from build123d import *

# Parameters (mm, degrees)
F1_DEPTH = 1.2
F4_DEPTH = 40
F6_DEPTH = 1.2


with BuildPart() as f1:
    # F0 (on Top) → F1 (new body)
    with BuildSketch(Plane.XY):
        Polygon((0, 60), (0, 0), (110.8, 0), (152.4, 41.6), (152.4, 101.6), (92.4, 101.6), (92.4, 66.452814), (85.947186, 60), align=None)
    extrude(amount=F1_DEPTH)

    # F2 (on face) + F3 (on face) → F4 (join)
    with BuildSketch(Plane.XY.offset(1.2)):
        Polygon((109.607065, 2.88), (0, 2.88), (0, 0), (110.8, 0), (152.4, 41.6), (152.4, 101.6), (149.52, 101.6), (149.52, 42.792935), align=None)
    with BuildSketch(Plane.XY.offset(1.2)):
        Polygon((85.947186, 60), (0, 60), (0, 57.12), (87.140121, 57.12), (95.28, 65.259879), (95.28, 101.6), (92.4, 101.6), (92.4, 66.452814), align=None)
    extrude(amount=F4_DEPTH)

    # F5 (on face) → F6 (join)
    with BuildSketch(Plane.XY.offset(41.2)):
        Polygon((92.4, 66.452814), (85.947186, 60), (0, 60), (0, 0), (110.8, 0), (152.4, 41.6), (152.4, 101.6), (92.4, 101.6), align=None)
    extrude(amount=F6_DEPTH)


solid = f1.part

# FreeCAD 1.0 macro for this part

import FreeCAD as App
import Part
import Sketcher
Q = App.Units.Quantity


def add_polygon(sketch, points):
    """Adds a closed chain of lines whose ends are joined by coincident constraints."""
    first, n = sketch.GeometryCount, len(points)
    for a, b in zip(points, points[1:] + points[:1]):
        sketch.addGeometry(Part.LineSegment(App.Vector(*a, 0), App.Vector(*b, 0)), False)
    for i in range(n):
        sketch.addConstraint(Sketcher.Constraint("Coincident", first + i, 2, first + (i + 1) % n, 1))

doc = App.newDocument("Part")
params = doc.addObject("Spreadsheet::Sheet", "Params")
for row, (alias, value) in enumerate([
    ("sketch1_width", "60 mm"),
    ("sketch1_width2", "110.8 mm"),
    ("pad1_length", "1.2 mm"),
    ("sketch2_height", "60 mm"),
    ("sketch2_width", "110.8 mm"),
    ("sketch2_width2", "2.88 mm"),
    ("pad2_length", "40 mm"),
    ("sketch3_width", "60 mm"),
    ("sketch3_width2", "110.8 mm"),
    ("pad3_length", "1.2 mm"),
], start=1):
    params.set(f"A{row}", alias)
    params.set(f"B{row}", "=" + value)
    params.setAlias(f"B{row}", alias)

body = doc.addObject("PartDesign::Body", "Body")

# Sketch on XY plane
sketch1 = body.newObject("Sketcher::SketchObject", "Sketch")
sketch1.AttachmentSupport = (doc.getObject("XY_Plane"), [""])
sketch1.MapMode = "FlatFace"
add_polygon(sketch1, [(0, 60), (0, 0), (110.8, 0), (152.4, 41.6), (152.4, 101.6), (92.4, 101.6), (92.4, 66.452814), (85.947186, 60)])  # lines 0-7
sketch1.addConstraint(Sketcher.Constraint("Vertical", 0))
sketch1.addConstraint(Sketcher.Constraint("Horizontal", 1))
sketch1.addConstraint(Sketcher.Constraint("Vertical", 3))
sketch1.addConstraint(Sketcher.Constraint("Horizontal", 4))
sketch1.addConstraint(Sketcher.Constraint("Vertical", 5))
sketch1.addConstraint(Sketcher.Constraint("Horizontal", 7))
sketch1.addConstraint(Sketcher.Constraint("Coincident", 0, 2, -1, 1))
sketch1.addConstraint(Sketcher.Constraint("Parallel", 2, 6))
sketch1.addConstraint(Sketcher.Constraint("Equal", 4, 0))
sketch1.addConstraint(Sketcher.Constraint("Equal", 0, 3))
sketch1.addConstraint(Sketcher.Constraint("DistanceX", 4, 2, 4, 1, 60.0))
sketch1.addConstraint(Sketcher.Constraint("Angle", 2, Q("45 deg")))
sketch1.addConstraint(Sketcher.Constraint("DistanceX", 1, 1, 1, 2, 110.8))
sketch1.addConstraint(Sketcher.Constraint("DistanceX", -1, 1, 2, 2, 152.4))
sketch1.addConstraint(Sketcher.Constraint("DistanceX", 7, 2, 7, 1, 85.947186))
sketch1.setExpression("Constraints[18]", "Params.sketch1_width")
sketch1.setExpression("Constraints[20]", "Params.sketch1_width2")
pad1 = body.newObject("PartDesign::Pad", "Pad")
pad1.Profile = sketch1
pad1.setExpression("Length", "Params.pad1_length")

# Sketch on XY plane
sketch2 = body.newObject("Sketcher::SketchObject", "Sketch001")
sketch2.AttachmentSupport = (doc.getObject("XY_Plane"), [""])
sketch2.MapMode = "FlatFace"
sketch2.AttachmentOffset = App.Placement(App.Vector(0, 0, 1.2), App.Rotation())
add_polygon(sketch2, [(109.607065, 2.88), (0, 2.88), (0, 0), (110.8, 0), (152.4, 41.6), (152.4, 101.6), (149.52, 101.6), (149.52, 42.792935)])  # lines 0-7
add_polygon(sketch2, [(85.947186, 60), (0, 60), (0, 57.12), (87.140121, 57.12), (95.28, 65.259879), (95.28, 101.6), (92.4, 101.6), (92.4, 66.452814)])  # lines 8-15
sketch2.addConstraint(Sketcher.Constraint("Horizontal", 0))
sketch2.addConstraint(Sketcher.Constraint("Vertical", 1))
sketch2.addConstraint(Sketcher.Constraint("Horizontal", 2))
sketch2.addConstraint(Sketcher.Constraint("Vertical", 4))
sketch2.addConstraint(Sketcher.Constraint("Horizontal", 5))
sketch2.addConstraint(Sketcher.Constraint("Vertical", 6))
sketch2.addConstraint(Sketcher.Constraint("Horizontal", 8))
sketch2.addConstraint(Sketcher.Constraint("Vertical", 9))
sketch2.addConstraint(Sketcher.Constraint("Horizontal", 10))
sketch2.addConstraint(Sketcher.Constraint("Vertical", 12))
sketch2.addConstraint(Sketcher.Constraint("Horizontal", 13))
sketch2.addConstraint(Sketcher.Constraint("Vertical", 14))
sketch2.addConstraint(Sketcher.Constraint("Coincident", 1, 2, -1, 1))
sketch2.addConstraint(Sketcher.Constraint("PointOnObject", 8, 2, -2))
sketch2.addConstraint(Sketcher.Constraint("Parallel", 3, 7))
sketch2.addConstraint(Sketcher.Constraint("Parallel", 7, 11))
sketch2.addConstraint(Sketcher.Constraint("Parallel", 11, 15))
sketch2.addConstraint(Sketcher.Constraint("Horizontal", 5, 2, 12, 2))
sketch2.addConstraint(Sketcher.Constraint("Equal", 5, 13))
sketch2.addConstraint(Sketcher.Constraint("Equal", 13, 1))
sketch2.addConstraint(Sketcher.Constraint("Equal", 1, 9))
sketch2.addConstraint(Sketcher.Constraint("DistanceY", 4, 1, 4, 2, 60.0))
sketch2.addConstraint(Sketcher.Constraint("Angle", 3, Q("45 deg")))
sketch2.addConstraint(Sketcher.Constraint("DistanceX", 2, 1, 2, 2, 110.8))
sketch2.addConstraint(Sketcher.Constraint("DistanceY", -1, 1, 8, 2, 60.0))
sketch2.addConstraint(Sketcher.Constraint("DistanceX", 13, 2, 4, 2, 60.0))
sketch2.addConstraint(Sketcher.Constraint("DistanceX", 5, 2, 5, 1, 2.88))
sketch2.addConstraint(Sketcher.Constraint("DistanceX", -1, 1, 3, 2, 152.4))
sketch2.addConstraint(Sketcher.Constraint("DistanceX", 10, 1, 10, 2, 87.140121))
sketch2.addConstraint(Sketcher.Constraint("DistanceX", 0, 2, 0, 1, 109.607065))
sketch2.addConstraint(Sketcher.Constraint("DistanceX", 8, 2, 8, 1, 85.947186))
sketch2.setExpression("Constraints[37]", "Params.sketch2_height")
sketch2.setExpression("Constraints[39]", "Params.sketch2_width")
sketch2.setExpression("Constraints[42]", "Params.sketch2_width2")
pad2 = body.newObject("PartDesign::Pad", "Pad001")
pad2.Profile = sketch2
pad2.setExpression("Length", "Params.pad2_length")

# Sketch on XY plane
sketch3 = body.newObject("Sketcher::SketchObject", "Sketch002")
sketch3.AttachmentSupport = (doc.getObject("XY_Plane"), [""])
sketch3.MapMode = "FlatFace"
sketch3.AttachmentOffset = App.Placement(App.Vector(0, 0, 41.2), App.Rotation())
add_polygon(sketch3, [(92.4, 66.452814), (85.947186, 60), (0, 60), (0, 0), (110.8, 0), (152.4, 41.6), (152.4, 101.6), (92.4, 101.6)])  # lines 0-7
sketch3.addConstraint(Sketcher.Constraint("Horizontal", 1))
sketch3.addConstraint(Sketcher.Constraint("Vertical", 2))
sketch3.addConstraint(Sketcher.Constraint("Horizontal", 3))
sketch3.addConstraint(Sketcher.Constraint("Vertical", 5))
sketch3.addConstraint(Sketcher.Constraint("Horizontal", 6))
sketch3.addConstraint(Sketcher.Constraint("Vertical", 7))
sketch3.addConstraint(Sketcher.Constraint("Coincident", 2, 2, -1, 1))
sketch3.addConstraint(Sketcher.Constraint("Parallel", 0, 4))
sketch3.addConstraint(Sketcher.Constraint("Equal", 6, 2))
sketch3.addConstraint(Sketcher.Constraint("Equal", 2, 5))
sketch3.addConstraint(Sketcher.Constraint("DistanceX", 6, 2, 6, 1, 60.0))
sketch3.addConstraint(Sketcher.Constraint("Angle", 0, Q("-135 deg")))
sketch3.addConstraint(Sketcher.Constraint("DistanceX", 3, 1, 3, 2, 110.8))
sketch3.addConstraint(Sketcher.Constraint("DistanceX", -1, 1, 4, 2, 152.4))
sketch3.addConstraint(Sketcher.Constraint("DistanceX", 1, 2, 1, 1, 85.947186))
sketch3.setExpression("Constraints[18]", "Params.sketch3_width")
sketch3.setExpression("Constraints[20]", "Params.sketch3_width2")
pad3 = body.newObject("PartDesign::Pad", "Pad002")
pad3.Profile = sketch3
pad3.setExpression("Length", "Params.pad3_length")

doc.recompute()
